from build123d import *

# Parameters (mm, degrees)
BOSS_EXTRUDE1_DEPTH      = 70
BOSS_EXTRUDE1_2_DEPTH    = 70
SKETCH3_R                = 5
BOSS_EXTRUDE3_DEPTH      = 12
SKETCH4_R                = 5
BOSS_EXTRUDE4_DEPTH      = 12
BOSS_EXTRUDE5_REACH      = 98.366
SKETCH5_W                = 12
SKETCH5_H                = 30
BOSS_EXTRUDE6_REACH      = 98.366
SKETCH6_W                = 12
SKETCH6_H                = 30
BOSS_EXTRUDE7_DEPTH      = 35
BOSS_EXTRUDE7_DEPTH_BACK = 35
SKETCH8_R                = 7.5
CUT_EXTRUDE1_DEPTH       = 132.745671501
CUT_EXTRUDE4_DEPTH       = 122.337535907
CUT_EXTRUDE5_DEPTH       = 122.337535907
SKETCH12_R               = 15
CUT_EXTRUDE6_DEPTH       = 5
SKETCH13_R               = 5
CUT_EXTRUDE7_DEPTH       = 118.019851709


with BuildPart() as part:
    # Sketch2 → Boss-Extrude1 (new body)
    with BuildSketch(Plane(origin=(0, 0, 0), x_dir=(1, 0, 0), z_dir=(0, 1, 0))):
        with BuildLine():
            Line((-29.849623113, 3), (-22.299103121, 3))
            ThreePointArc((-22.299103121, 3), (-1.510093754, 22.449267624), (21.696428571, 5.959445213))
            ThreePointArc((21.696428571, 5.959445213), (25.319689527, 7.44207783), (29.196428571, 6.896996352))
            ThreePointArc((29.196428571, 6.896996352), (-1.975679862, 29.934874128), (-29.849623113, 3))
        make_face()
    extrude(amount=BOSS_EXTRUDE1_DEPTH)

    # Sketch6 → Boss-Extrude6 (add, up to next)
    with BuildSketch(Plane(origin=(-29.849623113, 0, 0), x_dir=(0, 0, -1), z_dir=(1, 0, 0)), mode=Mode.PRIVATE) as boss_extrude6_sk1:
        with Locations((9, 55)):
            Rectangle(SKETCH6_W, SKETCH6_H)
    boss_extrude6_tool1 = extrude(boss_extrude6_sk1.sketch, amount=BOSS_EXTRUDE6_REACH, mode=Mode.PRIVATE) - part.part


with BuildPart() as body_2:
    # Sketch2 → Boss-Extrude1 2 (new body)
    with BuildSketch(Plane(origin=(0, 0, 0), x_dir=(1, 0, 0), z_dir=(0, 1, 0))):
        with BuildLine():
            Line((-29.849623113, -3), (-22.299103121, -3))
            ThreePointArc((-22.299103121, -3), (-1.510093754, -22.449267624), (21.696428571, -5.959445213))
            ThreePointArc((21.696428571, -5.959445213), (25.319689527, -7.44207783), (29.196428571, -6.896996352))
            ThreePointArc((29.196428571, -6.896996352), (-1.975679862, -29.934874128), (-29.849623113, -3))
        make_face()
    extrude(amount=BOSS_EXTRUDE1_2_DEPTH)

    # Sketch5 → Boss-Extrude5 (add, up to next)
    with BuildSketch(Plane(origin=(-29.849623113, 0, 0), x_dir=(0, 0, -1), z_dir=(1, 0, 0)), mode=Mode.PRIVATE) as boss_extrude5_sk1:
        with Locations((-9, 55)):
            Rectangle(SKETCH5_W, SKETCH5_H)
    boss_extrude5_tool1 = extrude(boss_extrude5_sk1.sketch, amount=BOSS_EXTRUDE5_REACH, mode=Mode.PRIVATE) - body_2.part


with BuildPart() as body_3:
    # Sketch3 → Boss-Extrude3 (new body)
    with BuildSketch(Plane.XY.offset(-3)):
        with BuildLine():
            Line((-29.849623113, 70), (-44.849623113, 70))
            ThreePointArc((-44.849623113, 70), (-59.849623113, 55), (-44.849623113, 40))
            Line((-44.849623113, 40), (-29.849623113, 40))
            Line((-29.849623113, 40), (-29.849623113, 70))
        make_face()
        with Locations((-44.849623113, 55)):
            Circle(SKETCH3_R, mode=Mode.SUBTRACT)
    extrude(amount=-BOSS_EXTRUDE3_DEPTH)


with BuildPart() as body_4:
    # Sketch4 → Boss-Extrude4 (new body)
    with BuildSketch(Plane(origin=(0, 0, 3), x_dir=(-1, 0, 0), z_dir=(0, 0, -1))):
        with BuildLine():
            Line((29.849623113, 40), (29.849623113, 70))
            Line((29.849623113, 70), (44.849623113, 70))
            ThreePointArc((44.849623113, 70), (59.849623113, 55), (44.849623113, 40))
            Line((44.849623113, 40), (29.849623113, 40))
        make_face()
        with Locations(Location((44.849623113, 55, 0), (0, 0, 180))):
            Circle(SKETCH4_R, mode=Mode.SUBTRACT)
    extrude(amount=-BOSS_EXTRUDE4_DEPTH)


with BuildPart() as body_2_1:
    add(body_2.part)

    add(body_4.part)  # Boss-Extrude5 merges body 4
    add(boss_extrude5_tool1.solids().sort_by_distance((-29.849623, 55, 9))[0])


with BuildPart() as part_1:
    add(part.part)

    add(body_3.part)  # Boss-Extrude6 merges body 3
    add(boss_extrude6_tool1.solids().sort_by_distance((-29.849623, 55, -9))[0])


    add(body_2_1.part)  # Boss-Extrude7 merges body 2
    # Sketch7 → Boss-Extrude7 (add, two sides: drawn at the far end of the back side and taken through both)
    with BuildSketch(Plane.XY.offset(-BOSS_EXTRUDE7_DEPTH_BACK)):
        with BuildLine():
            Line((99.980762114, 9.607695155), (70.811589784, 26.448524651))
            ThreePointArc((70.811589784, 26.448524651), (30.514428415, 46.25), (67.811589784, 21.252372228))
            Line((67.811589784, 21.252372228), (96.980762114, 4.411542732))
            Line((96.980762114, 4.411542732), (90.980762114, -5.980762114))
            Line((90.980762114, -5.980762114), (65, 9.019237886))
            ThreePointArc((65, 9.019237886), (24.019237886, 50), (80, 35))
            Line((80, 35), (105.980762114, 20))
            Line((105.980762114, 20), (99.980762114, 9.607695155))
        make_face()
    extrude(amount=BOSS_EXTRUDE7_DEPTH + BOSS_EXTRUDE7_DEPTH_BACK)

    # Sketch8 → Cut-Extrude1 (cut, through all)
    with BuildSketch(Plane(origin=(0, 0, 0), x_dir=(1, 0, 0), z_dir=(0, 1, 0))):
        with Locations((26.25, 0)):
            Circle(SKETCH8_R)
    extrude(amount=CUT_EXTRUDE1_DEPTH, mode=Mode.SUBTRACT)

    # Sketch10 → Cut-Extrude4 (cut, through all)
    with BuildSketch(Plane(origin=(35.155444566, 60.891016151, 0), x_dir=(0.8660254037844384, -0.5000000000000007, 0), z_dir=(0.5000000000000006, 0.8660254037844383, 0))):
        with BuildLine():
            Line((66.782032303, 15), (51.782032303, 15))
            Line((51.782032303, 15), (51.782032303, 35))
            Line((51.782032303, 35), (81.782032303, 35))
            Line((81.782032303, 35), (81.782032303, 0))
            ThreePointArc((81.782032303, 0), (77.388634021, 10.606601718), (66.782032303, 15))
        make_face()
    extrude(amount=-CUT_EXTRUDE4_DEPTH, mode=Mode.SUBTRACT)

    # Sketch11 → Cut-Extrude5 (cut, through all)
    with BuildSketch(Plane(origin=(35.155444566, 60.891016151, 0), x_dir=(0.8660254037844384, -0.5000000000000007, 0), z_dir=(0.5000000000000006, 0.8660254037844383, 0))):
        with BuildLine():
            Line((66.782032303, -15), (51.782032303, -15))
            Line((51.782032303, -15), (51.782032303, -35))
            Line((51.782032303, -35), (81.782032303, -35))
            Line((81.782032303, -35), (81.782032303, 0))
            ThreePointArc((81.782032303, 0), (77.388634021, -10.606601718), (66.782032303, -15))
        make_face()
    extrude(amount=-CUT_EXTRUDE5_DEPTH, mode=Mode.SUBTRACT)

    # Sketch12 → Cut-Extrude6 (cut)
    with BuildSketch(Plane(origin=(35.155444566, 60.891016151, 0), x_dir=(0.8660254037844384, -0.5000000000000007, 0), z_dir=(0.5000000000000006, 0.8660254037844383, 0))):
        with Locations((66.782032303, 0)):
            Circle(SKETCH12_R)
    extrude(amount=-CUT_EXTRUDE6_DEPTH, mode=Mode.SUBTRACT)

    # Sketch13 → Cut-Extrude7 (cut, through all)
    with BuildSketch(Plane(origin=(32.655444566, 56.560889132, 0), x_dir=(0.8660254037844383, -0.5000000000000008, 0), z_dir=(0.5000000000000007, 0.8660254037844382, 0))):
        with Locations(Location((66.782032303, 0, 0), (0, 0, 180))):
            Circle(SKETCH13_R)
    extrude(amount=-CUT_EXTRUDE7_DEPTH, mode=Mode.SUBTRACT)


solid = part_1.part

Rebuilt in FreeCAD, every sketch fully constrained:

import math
import FreeCAD as App
import Part
import Sketcher
from FreeCAD import Vector
Q = App.Units.Quantity

doc = App.newDocument("Part")
params = doc.addObject("Spreadsheet::Sheet", "Params")
for row, (alias, value) in enumerate([
    ("sketch1_radius", "30 mm"),
    ("sketch1_radius2", "22.5 mm"),
    ("sketch1_radius3", "7.5 mm"),
    ("pad1_length", "70 mm"),
    ("sketch2_radius", "30 mm"),
    ("sketch2_radius2", "7.5 mm"),
    ("sketch2_radius3", "22.5 mm"),
    ("pad2_length", "70 mm"),
    ("sketch3_diameter", "10 mm"),
    ("sketch3_radius", "15 mm"),
    ("sketch3_width", "15 mm"),
    ("pad3_length", "12 mm"),
    ("sketch4_diameter", "10 mm"),
    ("sketch4_radius", "15 mm"),
    ("sketch4_width", "15 mm"),
    ("pad4_length", "12 mm"),
    ("sketch5_width", "30 mm"),
    ("sketch5_height", "12 mm"),
    ("pad5_length", "3.868861 mm"),
    ("sketch6_width", "30 mm"),
    ("sketch6_height", "12 mm"),
    ("pad6_length", "3.868861 mm"),
    ("sketch7_radius", "30 mm"),
    ("sketch7_radius2", "22.5 mm"),
    ("sketch7_length", "12 mm"),
    ("sketch7_length2", "30 mm"),
    ("pad7_length", "35 mm"),
    ("pad7_length2", "35 mm"),
    ("sketch8_diameter", "15 mm"),
    ("sketch9_radius", "15 mm"),
    ("sketch9_width", "15 mm"),
    ("sketch9_height", "35 mm"),
    ("sketch10_radius", "15 mm"),
    ("sketch10_width", "15 mm"),
    ("sketch10_height", "20 mm"),
    ("sketch11_diameter", "30 mm"),
    ("pocket4_length", "5 mm"),
    ("sketch12_diameter", "10 mm"),
], start=1):
    params.set(f"A{row}", alias)
    params.set(f"B{row}", "=" + value)
    params.setAlias(f"B{row}", alias)

body = doc.addObject("PartDesign::Body", "Body")

# Sketch on XZ plane
sketch1 = body.newObject("Sketcher::SketchObject", "Sketch")
sketch1.AttachmentSupport = (doc.getObject("XZ_Plane"), [""])
sketch1.MapMode = "FlatFace"
sketch1.addGeometry(Part.LineSegment(Vector(-29.849623, -3, 0), Vector(-22.299103, -3, 0)), False)
sketch1.addGeometry(Part.ArcOfCircle(Part.Circle(Vector(0, 0, 0), Vector(0, 0, 1), 22.5), math.radians(-172.337744), math.radians(-15.358886)), False)
sketch1.addGeometry(Part.ArcOfCircle(Part.Circle(Vector(26.25, 0, 0), Vector(0, 0, 1), 7.5), math.radians(-127.383198), math.radians(-66.867604)), False)
sketch1.addGeometry(Part.ArcOfCircle(Part.Circle(Vector(0, 0, 0), Vector(0, 0, 1), 30), math.radians(-174.26083), math.radians(-13.291177)), False)
sketch1.addConstraint(Sketcher.Constraint("Coincident", 0, 2, 1, 1))
sketch1.addConstraint(Sketcher.Constraint("Coincident", 1, 2, 2, 1))
sketch1.addConstraint(Sketcher.Constraint("Coincident", 2, 2, 3, 2))
sketch1.addConstraint(Sketcher.Constraint("Coincident", 3, 1, 0, 1))
sketch1.addConstraint(Sketcher.Constraint("Horizontal", 0))
sketch1.addConstraint(Sketcher.Constraint("Coincident", 1, 3, -1, 1))
sketch1.addConstraint(Sketcher.Constraint("Coincident", 3, 3, -1, 1))
sketch1.addConstraint(Sketcher.Constraint("PointOnObject", 2, 3, -1))
sketch1.addConstraint(Sketcher.Constraint("Radius", 3, Q("30 mm")))
sketch1.addConstraint(Sketcher.Constraint("Radius", 1, Q("22.5 mm")))
sketch1.addConstraint(Sketcher.Constraint("Radius", 2, Q("7.5 mm")))
sketch1.addConstraint(Sketcher.Constraint("DistanceY", 0, 2, -1, 1, Q("3 mm")))
sketch1.addConstraint(Sketcher.Constraint("DistanceX", 1, 2, 2, 2, Q("7.5 mm")))
sketch1.setExpression("Constraints[8]", "Params.sketch1_radius")
sketch1.setExpression("Constraints[9]", "Params.sketch1_radius2")
sketch1.setExpression("Constraints[10]", "Params.sketch1_radius3")
pad1 = body.newObject("PartDesign::Pad", "Pad")
pad1.Profile = sketch1
pad1.setExpression("Length", "Params.pad1_length")
pad1.Reversed = True
body2 = doc.addObject("PartDesign::Body", "Body001")

# Sketch on XZ plane
sketch2 = body2.newObject("Sketcher::SketchObject", "Sketch001")
sketch2.AttachmentSupport = (doc.getObject("XZ_Plane001"), [""])
sketch2.MapMode = "FlatFace"
sketch2.addGeometry(Part.LineSegment(Vector(-22.299103, 3, 0), Vector(-29.849623, 3, 0)), False)
sketch2.addGeometry(Part.ArcOfCircle(Part.Circle(Vector(0, 0, 0), Vector(0, 0, 1), 30), math.radians(13.291177), math.radians(174.26083)), False)
sketch2.addGeometry(Part.ArcOfCircle(Part.Circle(Vector(26.25, 0, 0), Vector(0, 0, 1), 7.5), math.radians(66.867604), math.radians(127.383198)), False)
sketch2.addGeometry(Part.ArcOfCircle(Part.Circle(Vector(0, 0, 0), Vector(0, 0, 1), 22.5), math.radians(15.358886), math.radians(172.337744)), False)
sketch2.addConstraint(Sketcher.Constraint("Coincident", 0, 2, 1, 2))
sketch2.addConstraint(Sketcher.Constraint("Coincident", 1, 1, 2, 1))
sketch2.addConstraint(Sketcher.Constraint("Coincident", 2, 2, 3, 1))
sketch2.addConstraint(Sketcher.Constraint("Coincident", 3, 2, 0, 1))
sketch2.addConstraint(Sketcher.Constraint("Horizontal", 0))
sketch2.addConstraint(Sketcher.Constraint("Coincident", 1, 3, -1, 1))
sketch2.addConstraint(Sketcher.Constraint("Coincident", 3, 3, -1, 1))
sketch2.addConstraint(Sketcher.Constraint("PointOnObject", 2, 3, -1))
sketch2.addConstraint(Sketcher.Constraint("Radius", 1, Q("30 mm")))
sketch2.addConstraint(Sketcher.Constraint("Radius", 2, Q("7.5 mm")))
sketch2.addConstraint(Sketcher.Constraint("Radius", 3, Q("22.5 mm")))
sketch2.addConstraint(Sketcher.Constraint("DistanceY", -1, 1, 0, 2, Q("3 mm")))
sketch2.addConstraint(Sketcher.Constraint("DistanceX", 2, 2, 1, 1, Q("7.5 mm")))
sketch2.setExpression("Constraints[8]", "Params.sketch2_radius")
sketch2.setExpression("Constraints[9]", "Params.sketch2_radius2")
sketch2.setExpression("Constraints[10]", "Params.sketch2_radius3")
pad2 = body2.newObject("PartDesign::Pad", "Pad001")
pad2.Profile = sketch2
pad2.setExpression("Length", "Params.pad2_length")
pad2.Reversed = True
body3 = doc.addObject("PartDesign::Body", "Body002")

# Sketch on XY plane
sketch3 = body3.newObject("Sketcher::SketchObject", "Sketch002")
sketch3.AttachmentSupport = (doc.getObject("XY_Plane002"), [""])
sketch3.MapMode = "FlatFace"
sketch3.AttachmentOffset = App.Placement(Vector(0, 0, -3), App.Rotation())
sketch3.addGeometry(Part.LineSegment(Vector(-29.849623, 70, 0), Vector(-44.849623, 70, 0)), False)
sketch3.addGeometry(Part.ArcOfCircle(Part.Circle(Vector(-44.849623, 55, 0), Vector(0, 0, 1), 15), math.radians(90), math.radians(270)), False)
sketch3.addGeometry(Part.LineSegment(Vector(-44.849623, 40, 0), Vector(-29.849623, 40, 0)), False)
sketch3.addGeometry(Part.LineSegment(Vector(-29.849623, 40, 0), Vector(-29.849623, 70, 0)), False)
sketch3.addGeometry(Part.Circle(Vector(-44.849623, 55, 0), Vector(0, 0, 1), 5), False)
sketch3.addConstraint(Sketcher.Constraint("Tangent", 0, 2, 1, 1))
sketch3.addConstraint(Sketcher.Constraint("Tangent", 1, 2, 2, 1))
sketch3.addConstraint(Sketcher.Constraint("Coincident", 2, 2, 3, 1))
sketch3.addConstraint(Sketcher.Constraint("Coincident", 3, 2, 0, 1))
sketch3.addConstraint(Sketcher.Constraint("Horizontal", 0))
sketch3.addConstraint(Sketcher.Constraint("Horizontal", 2))
sketch3.addConstraint(Sketcher.Constraint("Vertical", 3))
sketch3.addConstraint(Sketcher.Constraint("Coincident", 4, 3, 1, 3))
sketch3.addConstraint(Sketcher.Constraint("Diameter", 4, Q("10 mm")))
sketch3.addConstraint(Sketcher.Constraint("Radius", 1, Q("15 mm")))
sketch3.addConstraint(Sketcher.Constraint("DistanceX", 0, 2, 0, 1, Q("15 mm")))
sketch3.addConstraint(Sketcher.Constraint("DistanceY", -1, 1, 1, 3, Q("55 mm")))
sketch3.addConstraint(Sketcher.Constraint("DistanceX", 1, 3, -1, 1, Q("44.849623 mm")))
sketch3.setExpression("Constraints[8]", "Params.sketch3_diameter")
sketch3.setExpression("Constraints[9]", "Params.sketch3_radius")
sketch3.setExpression("Constraints[10]", "Params.sketch3_width")
pad3 = body3.newObject("PartDesign::Pad", "Pad002")
pad3.Profile = sketch3
pad3.setExpression("Length", "Params.pad3_length")
pad3.Reversed = True
body4 = doc.addObject("PartDesign::Body", "Body003")

# Sketch on XY plane
sketch4 = body4.newObject("Sketcher::SketchObject", "Sketch003")
sketch4.AttachmentSupport = (doc.getObject("XY_Plane003"), [""])
sketch4.MapMode = "FlatFace"
sketch4.AttachmentOffset = App.Placement(Vector(0, 0, 3), App.Rotation())
sketch4.addGeometry(Part.LineSegment(Vector(-29.849623, 70, 0), Vector(-29.849623, 40, 0)), False)
sketch4.addGeometry(Part.LineSegment(Vector(-29.849623, 40, 0), Vector(-44.849623, 40, 0)), False)
sketch4.addGeometry(Part.ArcOfCircle(Part.Circle(Vector(-44.849623, 55, 0), Vector(0, 0, 1), 15), math.radians(90), math.radians(270)), False)
sketch4.addGeometry(Part.LineSegment(Vector(-44.849623, 70, 0), Vector(-29.849623, 70, 0)), False)
sketch4.addGeometry(Part.Circle(Vector(-44.849623, 55, 0), Vector(0, 0, 1), 5), False)
sketch4.addConstraint(Sketcher.Constraint("Coincident", 0, 2, 1, 1))
sketch4.addConstraint(Sketcher.Constraint("Tangent", 1, 2, 2, 2))
sketch4.addConstraint(Sketcher.Constraint("Tangent", 2, 1, 3, 1))
sketch4.addConstraint(Sketcher.Constraint("Coincident", 3, 2, 0, 1))
sketch4.addConstraint(Sketcher.Constraint("Vertical", 0))
sketch4.addConstraint(Sketcher.Constraint("Horizontal", 1))
sketch4.addConstraint(Sketcher.Constraint("Horizontal", 3))
sketch4.addConstraint(Sketcher.Constraint("Coincident", 4, 3, 2, 3))
sketch4.addConstraint(Sketcher.Constraint("Diameter", 4, Q("10 mm")))
sketch4.addConstraint(Sketcher.Constraint("Radius", 2, Q("15 mm")))
sketch4.addConstraint(Sketcher.Constraint("DistanceX", 1, 2, 1, 1, Q("15 mm")))
sketch4.addConstraint(Sketcher.Constraint("DistanceY", -1, 1, 2, 3, Q("55 mm")))
sketch4.addConstraint(Sketcher.Constraint("DistanceX", 2, 3, -1, 1, Q("44.849623 mm")))
sketch4.setExpression("Constraints[8]", "Params.sketch4_diameter")
sketch4.setExpression("Constraints[9]", "Params.sketch4_radius")
sketch4.setExpression("Constraints[10]", "Params.sketch4_width")
pad4 = body4.newObject("PartDesign::Pad", "Pad003")
pad4.Profile = sketch4
pad4.setExpression("Length", "Params.pad4_length")
body2.AllowCompound = True
doc.recompute()

boolean = body2.newObject("PartDesign::Boolean", "Boolean")
boolean.Type = "Fuse"
boolean.addObjects([body4])

# Sketch on YZ plane
sketch5 = body2.newObject("Sketcher::SketchObject", "Sketch004")
sketch5.AttachmentSupport = (doc.getObject("YZ_Plane001"), [""])
sketch5.MapMode = "FlatFace"
sketch5.AttachmentOffset = App.Placement(Vector(0, 0, -29.849623), App.Rotation())
sketch5.addGeometry(Part.LineSegment(Vector(70, 15, 0), Vector(40, 15, 0)), False)
sketch5.addGeometry(Part.LineSegment(Vector(40, 15, 0), Vector(40, 3, 0)), False)
sketch5.addGeometry(Part.LineSegment(Vector(40, 3, 0), Vector(70, 3, 0)), False)
sketch5.addGeometry(Part.LineSegment(Vector(70, 3, 0), Vector(70, 15, 0)), False)
sketch5.addConstraint(Sketcher.Constraint("Coincident", 0, 2, 1, 1))
sketch5.addConstraint(Sketcher.Constraint("Coincident", 1, 2, 2, 1))
sketch5.addConstraint(Sketcher.Constraint("Coincident", 2, 2, 3, 1))
sketch5.addConstraint(Sketcher.Constraint("Coincident", 3, 2, 0, 1))
sketch5.addConstraint(Sketcher.Constraint("Horizontal", 0))
sketch5.addConstraint(Sketcher.Constraint("Vertical", 1))
sketch5.addConstraint(Sketcher.Constraint("Horizontal", 2))
sketch5.addConstraint(Sketcher.Constraint("Vertical", 3))
sketch5.addConstraint(Sketcher.Constraint("DistanceX", 0, 2, 0, 1, Q("30 mm")))
sketch5.addConstraint(Sketcher.Constraint("DistanceY", 1, 2, 1, 1, Q("12 mm")))
sketch5.addConstraint(Sketcher.Constraint("DistanceX", -1, 1, 0, 2, Q("40 mm")))
sketch5.addConstraint(Sketcher.Constraint("DistanceY", -1, 1, 0, 2, Q("15 mm")))
sketch5.setExpression("Constraints[8]", "Params.sketch5_width")
sketch5.setExpression("Constraints[9]", "Params.sketch5_height")
pad5 = body2.newObject("PartDesign::Pad", "Pad004")
pad5.Profile = sketch5
pad5.setExpression("Length", "Params.pad5_length")
body.AllowCompound = True
doc.recompute()

boolean2 = body.newObject("PartDesign::Boolean", "Boolean001")
boolean2.Type = "Fuse"
boolean2.addObjects([body3])

# Sketch on YZ plane
sketch6 = body.newObject("Sketcher::SketchObject", "Sketch005")
sketch6.AttachmentSupport = (doc.getObject("YZ_Plane"), [""])
sketch6.MapMode = "FlatFace"
sketch6.AttachmentOffset = App.Placement(Vector(0, 0, -29.849623), App.Rotation())
sketch6.addGeometry(Part.LineSegment(Vector(70, -3, 0), Vector(40, -3, 0)), False)
sketch6.addGeometry(Part.LineSegment(Vector(40, -3, 0), Vector(40, -15, 0)), False)
sketch6.addGeometry(Part.LineSegment(Vector(40, -15, 0), Vector(70, -15, 0)), False)
sketch6.addGeometry(Part.LineSegment(Vector(70, -15, 0), Vector(70, -3, 0)), False)
sketch6.addConstraint(Sketcher.Constraint("Coincident", 0, 2, 1, 1))
sketch6.addConstraint(Sketcher.Constraint("Coincident", 1, 2, 2, 1))
sketch6.addConstraint(Sketcher.Constraint("Coincident", 2, 2, 3, 1))
sketch6.addConstraint(Sketcher.Constraint("Coincident", 3, 2, 0, 1))
sketch6.addConstraint(Sketcher.Constraint("Horizontal", 0))
sketch6.addConstraint(Sketcher.Constraint("Vertical", 1))
sketch6.addConstraint(Sketcher.Constraint("Horizontal", 2))
sketch6.addConstraint(Sketcher.Constraint("Vertical", 3))
sketch6.addConstraint(Sketcher.Constraint("DistanceX", 0, 2, 0, 1, Q("30 mm")))
sketch6.addConstraint(Sketcher.Constraint("DistanceY", 1, 2, 1, 1, Q("12 mm")))
sketch6.addConstraint(Sketcher.Constraint("DistanceX", -1, 1, 0, 2, Q("40 mm")))
sketch6.addConstraint(Sketcher.Constraint("DistanceY", 0, 2, -1, 1, Q("3 mm")))
sketch6.setExpression("Constraints[8]", "Params.sketch6_width")
sketch6.setExpression("Constraints[9]", "Params.sketch6_height")
pad6 = body.newObject("PartDesign::Pad", "Pad005")
pad6.Profile = sketch6
pad6.setExpression("Length", "Params.pad6_length")
doc.recompute()

boolean3 = body.newObject("PartDesign::Boolean", "Boolean002")
boolean3.Type = "Fuse"
boolean3.addObjects([body2])

# Sketch on XY plane
sketch7 = body.newObject("Sketcher::SketchObject", "Sketch006")
sketch7.AttachmentSupport = (doc.getObject("XY_Plane"), [""])
sketch7.MapMode = "FlatFace"
sketch7.addGeometry(Part.LineSegment(Vector(70.81159, 26.448525, 0), Vector(99.980762, 9.607695, 0)), False)
sketch7.addGeometry(Part.LineSegment(Vector(99.980762, 9.607695, 0), Vector(105.980762, 20, 0)), False)
sketch7.addGeometry(Part.LineSegment(Vector(105.980762, 20, 0), Vector(80, 35, 0)), False)
sketch7.addGeometry(Part.ArcOfCircle(Part.Circle(Vector(50, 35, 0), Vector(0, 0, 1), 30), math.radians(0), math.radians(300)), False)
sketch7.addGeometry(Part.LineSegment(Vector(65, 9.019238, 0), Vector(90.980762, -5.980762, 0)), False)
sketch7.addGeometry(Part.LineSegment(Vector(90.980762, -5.980762, 0), Vector(96.980762, 4.411543, 0)), False)
sketch7.addGeometry(Part.LineSegment(Vector(96.980762, 4.411543, 0), Vector(67.81159, 21.252372, 0)), False)
sketch7.addGeometry(Part.ArcOfCircle(Part.Circle(Vector(50, 35, 0), Vector(0, 0, 1), 22.5), math.radians(-22.337744), math.radians(322.337744)), False)
sketch7.addConstraint(Sketcher.Constraint("Coincident", 0, 2, 1, 1))
sketch7.addConstraint(Sketcher.Constraint("Coincident", 1, 2, 2, 1))
sketch7.addConstraint(Sketcher.Constraint("Coincident", 2, 2, 3, 1))
sketch7.addConstraint(Sketcher.Constraint("Coincident", 3, 2, 4, 1))
sketch7.addConstraint(Sketcher.Constraint("Coincident", 4, 2, 5, 1))
sketch7.addConstraint(Sketcher.Constraint("Coincident", 5, 2, 6, 1))
sketch7.addConstraint(Sketcher.Constraint("Coincident", 6, 2, 7, 2))
sketch7.addConstraint(Sketcher.Constraint("Coincident", 7, 1, 0, 1))
sketch7.addConstraint(Sketcher.Constraint("Coincident", 7, 3, 3, 3))
sketch7.addConstraint(Sketcher.Constraint("Perpendicular", 0, 1))
sketch7.addConstraint(Sketcher.Constraint("Perpendicular", 1, 2))
sketch7.addConstraint(Sketcher.Constraint("Parallel", 2, 4))
sketch7.addConstraint(Sketcher.Constraint("Perpendicular", 4, 5))
sketch7.addConstraint(Sketcher.Constraint("Perpendicular", 5, 6))
sketch7.addConstraint(Sketcher.Constraint("Horizontal", 7, 3, 2, 2))
sketch7.addConstraint(Sketcher.Constraint("Equal", 2, 4))
sketch7.addConstraint(Sketcher.Constraint("Equal", 1, 5))
sketch7.addConstraint(Sketcher.Constraint("Equal", 0, 6))
sketch7.addConstraint(Sketcher.Constraint("Radius", 3, Q("30 mm")))
sketch7.addConstraint(Sketcher.Constraint("Radius", 7, Q("22.5 mm")))
sketch7.addConstraint(Sketcher.Constraint("Angle", 0, Q("-30 deg")))
sketch7.addConstraint(Sketcher.Constraint("Distance", 1, Q("12 mm")))
sketch7.addConstraint(Sketcher.Constraint("Distance", 2, Q("30 mm")))
sketch7.addConstraint(Sketcher.Constraint("DistanceX", -1, 1, 3, 3, Q("50 mm")))
sketch7.addConstraint(Sketcher.Constraint("DistanceY", -1, 1, 3, 3, Q("35 mm")))
sketch7.setExpression("Constraints[18]", "Params.sketch7_radius")
sketch7.setExpression("Constraints[19]", "Params.sketch7_radius2")
sketch7.setExpression("Constraints[21]", "Params.sketch7_length")
sketch7.setExpression("Constraints[22]", "Params.sketch7_length2")
pad7 = body.newObject("PartDesign::Pad", "Pad006")
pad7.Profile = sketch7
pad7.Type = "TwoLengths"
pad7.setExpression("Length", "Params.pad7_length")
pad7.setExpression("Length2", "Params.pad7_length2")

# Sketch on XZ plane
sketch8 = body.newObject("Sketcher::SketchObject", "Sketch007")
sketch8.AttachmentSupport = (doc.getObject("XZ_Plane"), [""])
sketch8.MapMode = "FlatFace"
sketch8.addGeometry(Part.Circle(Vector(26.25, 0, 0), Vector(0, 0, 1), 7.5), False)
sketch8.addConstraint(Sketcher.Constraint("PointOnObject", 0, 3, -1))
sketch8.addConstraint(Sketcher.Constraint("Diameter", 0, Q("15 mm")))
sketch8.addConstraint(Sketcher.Constraint("DistanceX", -1, 1, 0, 3, Q("26.25 mm")))
sketch8.setExpression("Constraints[1]", "Params.sketch8_diameter")
pocket1 = body.newObject("PartDesign::Pocket", "Pocket")
pocket1.Profile = sketch8
pocket1.Type = "ThroughAll"

# Sketch on an angled plane
sketch9 = body.newObject("Sketcher::SketchObject", "Sketch008")
sketch9.Placement = App.Placement(Vector(35.155445, 60.891016, 0), App.Rotation(Vector(0.866025404, -0.5, 0), Vector(0, 0, -1), Vector(0.5, 0.866025404, 0), "ZXY"))
sketch9.addGeometry(Part.LineSegment(Vector(51.782032, 15, 0), Vector(66.782032, 15, 0)), False)
sketch9.addGeometry(Part.ArcOfCircle(Part.Circle(Vector(66.782032, 0, 0), Vector(0, 0, 1), 15), math.radians(0), math.radians(90)), False)
sketch9.addGeometry(Part.LineSegment(Vector(81.782032, 0, 0), Vector(81.782032, 35, 0)), False)
sketch9.addGeometry(Part.LineSegment(Vector(81.782032, 35, 0), Vector(51.782032, 35, 0)), False)
sketch9.addGeometry(Part.LineSegment(Vector(51.782032, 35, 0), Vector(51.782032, 15, 0)), False)
sketch9.addConstraint(Sketcher.Constraint("Tangent", 0, 2, 1, 2))
sketch9.addConstraint(Sketcher.Constraint("Tangent", 1, 1, 2, 1))
sketch9.addConstraint(Sketcher.Constraint("Coincident", 2, 2, 3, 1))
sketch9.addConstraint(Sketcher.Constraint("Coincident", 3, 2, 4, 1))
sketch9.addConstraint(Sketcher.Constraint("Coincident", 4, 2, 0, 1))
sketch9.addConstraint(Sketcher.Constraint("Horizontal", 0))
sketch9.addConstraint(Sketcher.Constraint("Vertical", 2))
sketch9.addConstraint(Sketcher.Constraint("Horizontal", 3))
sketch9.addConstraint(Sketcher.Constraint("Vertical", 4))
sketch9.addConstraint(Sketcher.Constraint("PointOnObject", 1, 3, -1))
sketch9.addConstraint(Sketcher.Constraint("Radius", 1, Q("15 mm")))
sketch9.addConstraint(Sketcher.Constraint("DistanceX", 0, 1, 0, 2, Q("15 mm")))
sketch9.addConstraint(Sketcher.Constraint("DistanceY", 2, 1, 2, 2, Q("35 mm")))
sketch9.addConstraint(Sketcher.Constraint("DistanceX", -1, 1, 1, 3, Q("66.782032 mm")))
sketch9.setExpression("Constraints[10]", "Params.sketch9_radius")
sketch9.setExpression("Constraints[11]", "Params.sketch9_width")
sketch9.setExpression("Constraints[12]", "Params.sketch9_height")
pocket2 = body.newObject("PartDesign::Pocket", "Pocket001")
pocket2.Profile = sketch9
pocket2.Type = "ThroughAll"

# Sketch on an angled plane
sketch10 = body.newObject("Sketcher::SketchObject", "Sketch009")
sketch10.Placement = App.Placement(Vector(35.155445, 60.891016, 0), App.Rotation(Vector(0.866025404, -0.5, 0), Vector(0, 0, -1), Vector(0.5, 0.866025404, 0), "ZXY"))
sketch10.addGeometry(Part.LineSegment(Vector(66.782032, -15, 0), Vector(51.782032, -15, 0)), False)
sketch10.addGeometry(Part.LineSegment(Vector(51.782032, -15, 0), Vector(51.782032, -35, 0)), False)
sketch10.addGeometry(Part.LineSegment(Vector(51.782032, -35, 0), Vector(81.782032, -35, 0)), False)
sketch10.addGeometry(Part.LineSegment(Vector(81.782032, -35, 0), Vector(81.782032, 0, 0)), False)
sketch10.addGeometry(Part.ArcOfCircle(Part.Circle(Vector(66.782032, 0, 0), Vector(0, 0, 1), 15), math.radians(-90), math.radians(0)), False)
sketch10.addConstraint(Sketcher.Constraint("Coincident", 0, 2, 1, 1))
sketch10.addConstraint(Sketcher.Constraint("Coincident", 1, 2, 2, 1))
sketch10.addConstraint(Sketcher.Constraint("Coincident", 2, 2, 3, 1))
sketch10.addConstraint(Sketcher.Constraint("Tangent", 3, 2, 4, 2))
sketch10.addConstraint(Sketcher.Constraint("Tangent", 4, 1, 0, 1))
sketch10.addConstraint(Sketcher.Constraint("Horizontal", 0))
sketch10.addConstraint(Sketcher.Constraint("Vertical", 1))
sketch10.addConstraint(Sketcher.Constraint("Horizontal", 2))
sketch10.addConstraint(Sketcher.Constraint("Vertical", 3))
sketch10.addConstraint(Sketcher.Constraint("PointOnObject", 4, 3, -1))
sketch10.addConstraint(Sketcher.Constraint("Radius", 4, Q("15 mm")))
sketch10.addConstraint(Sketcher.Constraint("DistanceX", 0, 2, 0, 1, Q("15 mm")))
sketch10.addConstraint(Sketcher.Constraint("DistanceY", 1, 2, 1, 1, Q("20 mm")))
sketch10.addConstraint(Sketcher.Constraint("DistanceX", -1, 1, 4, 3, Q("66.782032 mm")))
sketch10.setExpression("Constraints[10]", "Params.sketch10_radius")
sketch10.setExpression("Constraints[11]", "Params.sketch10_width")
sketch10.setExpression("Constraints[12]", "Params.sketch10_height")
pocket3 = body.newObject("PartDesign::Pocket", "Pocket002")
pocket3.Profile = sketch10
pocket3.Type = "ThroughAll"

# Sketch on an angled plane
sketch11 = body.newObject("Sketcher::SketchObject", "Sketch010")
sketch11.Placement = App.Placement(Vector(35.155445, 60.891016, 0), App.Rotation(Vector(0.866025404, -0.5, 0), Vector(0, 0, -1), Vector(0.5, 0.866025404, 0), "ZXY"))
sketch11.addGeometry(Part.Circle(Vector(66.782032, 0, 0), Vector(0, 0, 1), 15), False)
sketch11.addConstraint(Sketcher.Constraint("PointOnObject", 0, 3, -1))
sketch11.addConstraint(Sketcher.Constraint("Diameter", 0, Q("30 mm")))
sketch11.addConstraint(Sketcher.Constraint("DistanceX", -1, 1, 0, 3, Q("66.782032 mm")))
sketch11.setExpression("Constraints[1]", "Params.sketch11_diameter")
pocket4 = body.newObject("PartDesign::Pocket", "Pocket003")
pocket4.Profile = sketch11
pocket4.setExpression("Length", "Params.pocket4_length")

# Sketch on an angled plane
sketch12 = body.newObject("Sketcher::SketchObject", "Sketch011")
sketch12.Placement = App.Placement(Vector(32.655445, 56.560889, 0), App.Rotation(Vector(0.866025404, -0.5, 0), Vector(0, 0, -1), Vector(0.5, 0.866025404, 0), "ZXY"))
sketch12.addGeometry(Part.Circle(Vector(66.782032, 0, 0), Vector(0, 0, 1), 5), False)
sketch12.addConstraint(Sketcher.Constraint("PointOnObject", 0, 3, -1))
sketch12.addConstraint(Sketcher.Constraint("Diameter", 0, Q("10 mm")))
sketch12.addConstraint(Sketcher.Constraint("DistanceX", -1, 1, 0, 3, Q("66.782032 mm")))
sketch12.setExpression("Constraints[1]", "Params.sketch12_diameter")
pocket5 = body.newObject("PartDesign::Pocket", "Pocket004")
pocket5.Profile = sketch12
pocket5.Type = "ThroughAll"

doc.recompute()
